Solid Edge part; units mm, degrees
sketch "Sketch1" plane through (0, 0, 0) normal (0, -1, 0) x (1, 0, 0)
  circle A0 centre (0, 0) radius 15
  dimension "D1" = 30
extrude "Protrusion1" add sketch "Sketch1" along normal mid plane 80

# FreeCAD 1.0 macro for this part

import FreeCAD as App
import Part
import Sketcher

V = App.Vector
Q = App.Units.Quantity

doc = App.newDocument("Part")
params = doc.addObject("Spreadsheet::Sheet", "Params")
for row, (alias, value) in enumerate([
    ("sketch1_diameter", "30 mm"),
    ("pad1_length", "80 mm"),
], start=1):
    params.set(f"A{row}", alias)
    params.set(f"B{row}", "=" + value)
    params.setAlias(f"B{row}", alias)

body = doc.addObject("PartDesign::Body", "Body")

sketch1 = doc.addObject("Sketcher::SketchObject", "Sketch")
body.addObject(sketch1)
sketch1.AttachmentSupport = (doc.XZ_Plane, [""])
sketch1.MapMode = "FlatFace"
sketch1.addGeometry(Part.Circle(V(0, 0, 0), V(0, 0, 1), 15), False)
sketch1.addConstraint([
    Sketcher.Constraint("Coincident", 0, 3, -1, 1),
    Sketcher.Constraint("Diameter", 0, Q("30 mm")),
])
sketch1.setExpression("Constraints[1]", "Params.sketch1_diameter")
pad1 = doc.addObject("PartDesign::Pad", "Pad")
body.addObject(pad1)
pad1.Profile = sketch1
pad1.setExpression("Length", "Params.pad1_length")
pad1.Midplane = True

doc.recompute()
